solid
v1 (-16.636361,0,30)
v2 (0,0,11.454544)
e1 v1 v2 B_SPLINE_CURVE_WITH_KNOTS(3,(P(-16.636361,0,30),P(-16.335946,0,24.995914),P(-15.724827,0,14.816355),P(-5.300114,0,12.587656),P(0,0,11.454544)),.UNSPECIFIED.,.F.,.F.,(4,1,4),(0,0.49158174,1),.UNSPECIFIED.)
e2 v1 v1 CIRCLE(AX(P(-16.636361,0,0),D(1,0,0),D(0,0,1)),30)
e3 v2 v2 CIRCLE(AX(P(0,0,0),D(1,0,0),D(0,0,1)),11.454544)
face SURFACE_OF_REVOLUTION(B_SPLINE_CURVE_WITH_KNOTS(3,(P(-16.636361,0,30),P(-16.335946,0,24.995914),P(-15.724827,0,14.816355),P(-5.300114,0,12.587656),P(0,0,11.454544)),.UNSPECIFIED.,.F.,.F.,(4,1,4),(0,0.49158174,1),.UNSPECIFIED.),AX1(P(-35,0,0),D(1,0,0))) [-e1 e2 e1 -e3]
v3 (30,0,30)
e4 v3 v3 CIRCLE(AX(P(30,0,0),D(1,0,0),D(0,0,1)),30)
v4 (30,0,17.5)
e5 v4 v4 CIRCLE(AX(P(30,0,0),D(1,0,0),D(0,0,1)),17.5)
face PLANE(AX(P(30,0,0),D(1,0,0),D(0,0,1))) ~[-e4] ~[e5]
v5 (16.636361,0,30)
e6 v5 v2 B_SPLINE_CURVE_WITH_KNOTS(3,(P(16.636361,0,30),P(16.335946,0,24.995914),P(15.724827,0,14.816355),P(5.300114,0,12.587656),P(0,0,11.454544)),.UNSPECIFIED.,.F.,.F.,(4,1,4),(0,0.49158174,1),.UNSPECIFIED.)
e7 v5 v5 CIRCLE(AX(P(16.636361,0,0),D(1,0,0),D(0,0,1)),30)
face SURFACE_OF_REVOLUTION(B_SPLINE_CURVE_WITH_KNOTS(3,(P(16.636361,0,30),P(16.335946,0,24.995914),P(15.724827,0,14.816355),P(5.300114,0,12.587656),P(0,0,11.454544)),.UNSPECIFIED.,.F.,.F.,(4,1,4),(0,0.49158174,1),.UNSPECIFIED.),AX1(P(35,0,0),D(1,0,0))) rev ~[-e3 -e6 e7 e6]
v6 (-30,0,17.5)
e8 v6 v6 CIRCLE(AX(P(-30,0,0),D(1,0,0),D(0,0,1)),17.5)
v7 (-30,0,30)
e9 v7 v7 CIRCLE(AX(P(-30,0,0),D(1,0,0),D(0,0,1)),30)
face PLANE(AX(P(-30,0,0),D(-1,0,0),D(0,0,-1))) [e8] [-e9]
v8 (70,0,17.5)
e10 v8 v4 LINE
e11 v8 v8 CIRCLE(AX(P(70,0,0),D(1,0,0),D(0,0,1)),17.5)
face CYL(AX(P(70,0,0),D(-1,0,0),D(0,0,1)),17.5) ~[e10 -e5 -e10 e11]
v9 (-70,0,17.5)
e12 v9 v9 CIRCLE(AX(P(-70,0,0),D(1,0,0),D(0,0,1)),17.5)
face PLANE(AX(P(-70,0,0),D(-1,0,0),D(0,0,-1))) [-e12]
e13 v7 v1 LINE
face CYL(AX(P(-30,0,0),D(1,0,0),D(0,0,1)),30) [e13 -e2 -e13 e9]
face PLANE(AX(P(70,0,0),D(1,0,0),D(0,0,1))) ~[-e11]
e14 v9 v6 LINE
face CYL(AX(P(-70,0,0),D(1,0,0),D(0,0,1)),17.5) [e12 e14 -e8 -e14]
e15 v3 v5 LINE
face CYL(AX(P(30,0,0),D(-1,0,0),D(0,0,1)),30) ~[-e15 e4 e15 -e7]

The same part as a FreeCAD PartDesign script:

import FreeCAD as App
import Part
import Sketcher

V = App.Vector
Q = App.Units.Quantity

doc = App.newDocument("Part")
body = doc.addObject("PartDesign::Body", "Body")

# Sketch on XZ plane
sketch1 = body.newObject("Sketcher::SketchObject", "Sketch")
sketch1.AttachmentSupport = (doc.getObject("XZ_Plane"), [""])
sketch1.MapMode = "FlatFace"
sketch1.addGeometry(Part.LineSegment(V(0, 11.454544, 0), V(0, 0, 0)), False)
sketch1.addGeometry(Part.LineSegment(V(0, 0, 0), V(70, 0, 0)), False)
sketch1.addGeometry(Part.LineSegment(V(70, 0, 0), V(70, 17.5, 0)), False)
sketch1.addGeometry(Part.LineSegment(V(70, 17.5, 0), V(30, 17.5, 0)), False)
sketch1.addGeometry(Part.LineSegment(V(30, 17.5, 0), V(30, 30, 0)), False)
sketch1.addGeometry(Part.LineSegment(V(30, 30, 0), V(16.636361, 30, 0)), False)
sketch1.addGeometry(Part.BSplineCurve([V(16.636361, 30, 0), V(16.335946, 24.995914, 0), V(15.724827, 14.816355, 0), V(5.300114, 12.587656, 0), V(0, 11.454544, 0)], [4, 1, 4], [0, 0.49158174, 1], False, 3, [1, 1, 1, 1, 1], False), False)
sketch1.addConstraint(Sketcher.Constraint("Block", 6))
sketch1.addConstraint(Sketcher.Constraint("Coincident", 0, 2, 1, 1))
sketch1.addConstraint(Sketcher.Constraint("Coincident", 1, 2, 2, 1))
sketch1.addConstraint(Sketcher.Constraint("Coincident", 2, 2, 3, 1))
sketch1.addConstraint(Sketcher.Constraint("Coincident", 3, 2, 4, 1))
sketch1.addConstraint(Sketcher.Constraint("Coincident", 4, 2, 5, 1))
sketch1.addConstraint(Sketcher.Constraint("Coincident", 5, 2, 6, 1))
sketch1.addConstraint(Sketcher.Constraint("Coincident", 6, 2, 0, 1))
sketch1.addConstraint(Sketcher.Constraint("Vertical", 0))
sketch1.addConstraint(Sketcher.Constraint("Horizontal", 1))
sketch1.addConstraint(Sketcher.Constraint("Vertical", 2))
sketch1.addConstraint(Sketcher.Constraint("Horizontal", 3))
sketch1.addConstraint(Sketcher.Constraint("Vertical", 4))
sketch1.addConstraint(Sketcher.Constraint("Horizontal", 5))
sketch1.addConstraint(Sketcher.Constraint("PointOnObject", 1, 2, -1))
sketch1.addConstraint(Sketcher.Constraint("DistanceX", 1, 1, 1, 2, Q("70 mm")))
sketch1.addConstraint(Sketcher.Constraint("DistanceX", 3, 2, 3, 1, Q("40 mm")))
sketch1.addConstraint(Sketcher.Constraint("DistanceY", 2, 1, 2, 2, Q("17.5 mm")))
revolution = body.newObject("PartDesign::Revolution", "Revolution")
revolution.Profile = sketch1
revolution.ReferenceAxis = (sketch1, ["H_Axis"])
revolution.Angle = 360
body2 = doc.addObject("PartDesign::Body", "Body001")
doc.recompute()

body2.BaseFeature = body
doc.recompute()

mirroring = doc.addObject("Part::Mirroring", "Mirroring")
mirroring.Source = body
mirroring.Base = V(0, 0, 0)
mirroring.Normal = V(-1, 0, 0)
body3 = doc.addObject("PartDesign::Body", "Body002")
body3.BaseFeature = mirroring
boolean = body2.newObject("PartDesign::Boolean", "Boolean")
boolean.Type = "Fuse"
boolean.addObjects([body3])
doc.recompute()
mirroring.Visibility = False

doc.recompute()
